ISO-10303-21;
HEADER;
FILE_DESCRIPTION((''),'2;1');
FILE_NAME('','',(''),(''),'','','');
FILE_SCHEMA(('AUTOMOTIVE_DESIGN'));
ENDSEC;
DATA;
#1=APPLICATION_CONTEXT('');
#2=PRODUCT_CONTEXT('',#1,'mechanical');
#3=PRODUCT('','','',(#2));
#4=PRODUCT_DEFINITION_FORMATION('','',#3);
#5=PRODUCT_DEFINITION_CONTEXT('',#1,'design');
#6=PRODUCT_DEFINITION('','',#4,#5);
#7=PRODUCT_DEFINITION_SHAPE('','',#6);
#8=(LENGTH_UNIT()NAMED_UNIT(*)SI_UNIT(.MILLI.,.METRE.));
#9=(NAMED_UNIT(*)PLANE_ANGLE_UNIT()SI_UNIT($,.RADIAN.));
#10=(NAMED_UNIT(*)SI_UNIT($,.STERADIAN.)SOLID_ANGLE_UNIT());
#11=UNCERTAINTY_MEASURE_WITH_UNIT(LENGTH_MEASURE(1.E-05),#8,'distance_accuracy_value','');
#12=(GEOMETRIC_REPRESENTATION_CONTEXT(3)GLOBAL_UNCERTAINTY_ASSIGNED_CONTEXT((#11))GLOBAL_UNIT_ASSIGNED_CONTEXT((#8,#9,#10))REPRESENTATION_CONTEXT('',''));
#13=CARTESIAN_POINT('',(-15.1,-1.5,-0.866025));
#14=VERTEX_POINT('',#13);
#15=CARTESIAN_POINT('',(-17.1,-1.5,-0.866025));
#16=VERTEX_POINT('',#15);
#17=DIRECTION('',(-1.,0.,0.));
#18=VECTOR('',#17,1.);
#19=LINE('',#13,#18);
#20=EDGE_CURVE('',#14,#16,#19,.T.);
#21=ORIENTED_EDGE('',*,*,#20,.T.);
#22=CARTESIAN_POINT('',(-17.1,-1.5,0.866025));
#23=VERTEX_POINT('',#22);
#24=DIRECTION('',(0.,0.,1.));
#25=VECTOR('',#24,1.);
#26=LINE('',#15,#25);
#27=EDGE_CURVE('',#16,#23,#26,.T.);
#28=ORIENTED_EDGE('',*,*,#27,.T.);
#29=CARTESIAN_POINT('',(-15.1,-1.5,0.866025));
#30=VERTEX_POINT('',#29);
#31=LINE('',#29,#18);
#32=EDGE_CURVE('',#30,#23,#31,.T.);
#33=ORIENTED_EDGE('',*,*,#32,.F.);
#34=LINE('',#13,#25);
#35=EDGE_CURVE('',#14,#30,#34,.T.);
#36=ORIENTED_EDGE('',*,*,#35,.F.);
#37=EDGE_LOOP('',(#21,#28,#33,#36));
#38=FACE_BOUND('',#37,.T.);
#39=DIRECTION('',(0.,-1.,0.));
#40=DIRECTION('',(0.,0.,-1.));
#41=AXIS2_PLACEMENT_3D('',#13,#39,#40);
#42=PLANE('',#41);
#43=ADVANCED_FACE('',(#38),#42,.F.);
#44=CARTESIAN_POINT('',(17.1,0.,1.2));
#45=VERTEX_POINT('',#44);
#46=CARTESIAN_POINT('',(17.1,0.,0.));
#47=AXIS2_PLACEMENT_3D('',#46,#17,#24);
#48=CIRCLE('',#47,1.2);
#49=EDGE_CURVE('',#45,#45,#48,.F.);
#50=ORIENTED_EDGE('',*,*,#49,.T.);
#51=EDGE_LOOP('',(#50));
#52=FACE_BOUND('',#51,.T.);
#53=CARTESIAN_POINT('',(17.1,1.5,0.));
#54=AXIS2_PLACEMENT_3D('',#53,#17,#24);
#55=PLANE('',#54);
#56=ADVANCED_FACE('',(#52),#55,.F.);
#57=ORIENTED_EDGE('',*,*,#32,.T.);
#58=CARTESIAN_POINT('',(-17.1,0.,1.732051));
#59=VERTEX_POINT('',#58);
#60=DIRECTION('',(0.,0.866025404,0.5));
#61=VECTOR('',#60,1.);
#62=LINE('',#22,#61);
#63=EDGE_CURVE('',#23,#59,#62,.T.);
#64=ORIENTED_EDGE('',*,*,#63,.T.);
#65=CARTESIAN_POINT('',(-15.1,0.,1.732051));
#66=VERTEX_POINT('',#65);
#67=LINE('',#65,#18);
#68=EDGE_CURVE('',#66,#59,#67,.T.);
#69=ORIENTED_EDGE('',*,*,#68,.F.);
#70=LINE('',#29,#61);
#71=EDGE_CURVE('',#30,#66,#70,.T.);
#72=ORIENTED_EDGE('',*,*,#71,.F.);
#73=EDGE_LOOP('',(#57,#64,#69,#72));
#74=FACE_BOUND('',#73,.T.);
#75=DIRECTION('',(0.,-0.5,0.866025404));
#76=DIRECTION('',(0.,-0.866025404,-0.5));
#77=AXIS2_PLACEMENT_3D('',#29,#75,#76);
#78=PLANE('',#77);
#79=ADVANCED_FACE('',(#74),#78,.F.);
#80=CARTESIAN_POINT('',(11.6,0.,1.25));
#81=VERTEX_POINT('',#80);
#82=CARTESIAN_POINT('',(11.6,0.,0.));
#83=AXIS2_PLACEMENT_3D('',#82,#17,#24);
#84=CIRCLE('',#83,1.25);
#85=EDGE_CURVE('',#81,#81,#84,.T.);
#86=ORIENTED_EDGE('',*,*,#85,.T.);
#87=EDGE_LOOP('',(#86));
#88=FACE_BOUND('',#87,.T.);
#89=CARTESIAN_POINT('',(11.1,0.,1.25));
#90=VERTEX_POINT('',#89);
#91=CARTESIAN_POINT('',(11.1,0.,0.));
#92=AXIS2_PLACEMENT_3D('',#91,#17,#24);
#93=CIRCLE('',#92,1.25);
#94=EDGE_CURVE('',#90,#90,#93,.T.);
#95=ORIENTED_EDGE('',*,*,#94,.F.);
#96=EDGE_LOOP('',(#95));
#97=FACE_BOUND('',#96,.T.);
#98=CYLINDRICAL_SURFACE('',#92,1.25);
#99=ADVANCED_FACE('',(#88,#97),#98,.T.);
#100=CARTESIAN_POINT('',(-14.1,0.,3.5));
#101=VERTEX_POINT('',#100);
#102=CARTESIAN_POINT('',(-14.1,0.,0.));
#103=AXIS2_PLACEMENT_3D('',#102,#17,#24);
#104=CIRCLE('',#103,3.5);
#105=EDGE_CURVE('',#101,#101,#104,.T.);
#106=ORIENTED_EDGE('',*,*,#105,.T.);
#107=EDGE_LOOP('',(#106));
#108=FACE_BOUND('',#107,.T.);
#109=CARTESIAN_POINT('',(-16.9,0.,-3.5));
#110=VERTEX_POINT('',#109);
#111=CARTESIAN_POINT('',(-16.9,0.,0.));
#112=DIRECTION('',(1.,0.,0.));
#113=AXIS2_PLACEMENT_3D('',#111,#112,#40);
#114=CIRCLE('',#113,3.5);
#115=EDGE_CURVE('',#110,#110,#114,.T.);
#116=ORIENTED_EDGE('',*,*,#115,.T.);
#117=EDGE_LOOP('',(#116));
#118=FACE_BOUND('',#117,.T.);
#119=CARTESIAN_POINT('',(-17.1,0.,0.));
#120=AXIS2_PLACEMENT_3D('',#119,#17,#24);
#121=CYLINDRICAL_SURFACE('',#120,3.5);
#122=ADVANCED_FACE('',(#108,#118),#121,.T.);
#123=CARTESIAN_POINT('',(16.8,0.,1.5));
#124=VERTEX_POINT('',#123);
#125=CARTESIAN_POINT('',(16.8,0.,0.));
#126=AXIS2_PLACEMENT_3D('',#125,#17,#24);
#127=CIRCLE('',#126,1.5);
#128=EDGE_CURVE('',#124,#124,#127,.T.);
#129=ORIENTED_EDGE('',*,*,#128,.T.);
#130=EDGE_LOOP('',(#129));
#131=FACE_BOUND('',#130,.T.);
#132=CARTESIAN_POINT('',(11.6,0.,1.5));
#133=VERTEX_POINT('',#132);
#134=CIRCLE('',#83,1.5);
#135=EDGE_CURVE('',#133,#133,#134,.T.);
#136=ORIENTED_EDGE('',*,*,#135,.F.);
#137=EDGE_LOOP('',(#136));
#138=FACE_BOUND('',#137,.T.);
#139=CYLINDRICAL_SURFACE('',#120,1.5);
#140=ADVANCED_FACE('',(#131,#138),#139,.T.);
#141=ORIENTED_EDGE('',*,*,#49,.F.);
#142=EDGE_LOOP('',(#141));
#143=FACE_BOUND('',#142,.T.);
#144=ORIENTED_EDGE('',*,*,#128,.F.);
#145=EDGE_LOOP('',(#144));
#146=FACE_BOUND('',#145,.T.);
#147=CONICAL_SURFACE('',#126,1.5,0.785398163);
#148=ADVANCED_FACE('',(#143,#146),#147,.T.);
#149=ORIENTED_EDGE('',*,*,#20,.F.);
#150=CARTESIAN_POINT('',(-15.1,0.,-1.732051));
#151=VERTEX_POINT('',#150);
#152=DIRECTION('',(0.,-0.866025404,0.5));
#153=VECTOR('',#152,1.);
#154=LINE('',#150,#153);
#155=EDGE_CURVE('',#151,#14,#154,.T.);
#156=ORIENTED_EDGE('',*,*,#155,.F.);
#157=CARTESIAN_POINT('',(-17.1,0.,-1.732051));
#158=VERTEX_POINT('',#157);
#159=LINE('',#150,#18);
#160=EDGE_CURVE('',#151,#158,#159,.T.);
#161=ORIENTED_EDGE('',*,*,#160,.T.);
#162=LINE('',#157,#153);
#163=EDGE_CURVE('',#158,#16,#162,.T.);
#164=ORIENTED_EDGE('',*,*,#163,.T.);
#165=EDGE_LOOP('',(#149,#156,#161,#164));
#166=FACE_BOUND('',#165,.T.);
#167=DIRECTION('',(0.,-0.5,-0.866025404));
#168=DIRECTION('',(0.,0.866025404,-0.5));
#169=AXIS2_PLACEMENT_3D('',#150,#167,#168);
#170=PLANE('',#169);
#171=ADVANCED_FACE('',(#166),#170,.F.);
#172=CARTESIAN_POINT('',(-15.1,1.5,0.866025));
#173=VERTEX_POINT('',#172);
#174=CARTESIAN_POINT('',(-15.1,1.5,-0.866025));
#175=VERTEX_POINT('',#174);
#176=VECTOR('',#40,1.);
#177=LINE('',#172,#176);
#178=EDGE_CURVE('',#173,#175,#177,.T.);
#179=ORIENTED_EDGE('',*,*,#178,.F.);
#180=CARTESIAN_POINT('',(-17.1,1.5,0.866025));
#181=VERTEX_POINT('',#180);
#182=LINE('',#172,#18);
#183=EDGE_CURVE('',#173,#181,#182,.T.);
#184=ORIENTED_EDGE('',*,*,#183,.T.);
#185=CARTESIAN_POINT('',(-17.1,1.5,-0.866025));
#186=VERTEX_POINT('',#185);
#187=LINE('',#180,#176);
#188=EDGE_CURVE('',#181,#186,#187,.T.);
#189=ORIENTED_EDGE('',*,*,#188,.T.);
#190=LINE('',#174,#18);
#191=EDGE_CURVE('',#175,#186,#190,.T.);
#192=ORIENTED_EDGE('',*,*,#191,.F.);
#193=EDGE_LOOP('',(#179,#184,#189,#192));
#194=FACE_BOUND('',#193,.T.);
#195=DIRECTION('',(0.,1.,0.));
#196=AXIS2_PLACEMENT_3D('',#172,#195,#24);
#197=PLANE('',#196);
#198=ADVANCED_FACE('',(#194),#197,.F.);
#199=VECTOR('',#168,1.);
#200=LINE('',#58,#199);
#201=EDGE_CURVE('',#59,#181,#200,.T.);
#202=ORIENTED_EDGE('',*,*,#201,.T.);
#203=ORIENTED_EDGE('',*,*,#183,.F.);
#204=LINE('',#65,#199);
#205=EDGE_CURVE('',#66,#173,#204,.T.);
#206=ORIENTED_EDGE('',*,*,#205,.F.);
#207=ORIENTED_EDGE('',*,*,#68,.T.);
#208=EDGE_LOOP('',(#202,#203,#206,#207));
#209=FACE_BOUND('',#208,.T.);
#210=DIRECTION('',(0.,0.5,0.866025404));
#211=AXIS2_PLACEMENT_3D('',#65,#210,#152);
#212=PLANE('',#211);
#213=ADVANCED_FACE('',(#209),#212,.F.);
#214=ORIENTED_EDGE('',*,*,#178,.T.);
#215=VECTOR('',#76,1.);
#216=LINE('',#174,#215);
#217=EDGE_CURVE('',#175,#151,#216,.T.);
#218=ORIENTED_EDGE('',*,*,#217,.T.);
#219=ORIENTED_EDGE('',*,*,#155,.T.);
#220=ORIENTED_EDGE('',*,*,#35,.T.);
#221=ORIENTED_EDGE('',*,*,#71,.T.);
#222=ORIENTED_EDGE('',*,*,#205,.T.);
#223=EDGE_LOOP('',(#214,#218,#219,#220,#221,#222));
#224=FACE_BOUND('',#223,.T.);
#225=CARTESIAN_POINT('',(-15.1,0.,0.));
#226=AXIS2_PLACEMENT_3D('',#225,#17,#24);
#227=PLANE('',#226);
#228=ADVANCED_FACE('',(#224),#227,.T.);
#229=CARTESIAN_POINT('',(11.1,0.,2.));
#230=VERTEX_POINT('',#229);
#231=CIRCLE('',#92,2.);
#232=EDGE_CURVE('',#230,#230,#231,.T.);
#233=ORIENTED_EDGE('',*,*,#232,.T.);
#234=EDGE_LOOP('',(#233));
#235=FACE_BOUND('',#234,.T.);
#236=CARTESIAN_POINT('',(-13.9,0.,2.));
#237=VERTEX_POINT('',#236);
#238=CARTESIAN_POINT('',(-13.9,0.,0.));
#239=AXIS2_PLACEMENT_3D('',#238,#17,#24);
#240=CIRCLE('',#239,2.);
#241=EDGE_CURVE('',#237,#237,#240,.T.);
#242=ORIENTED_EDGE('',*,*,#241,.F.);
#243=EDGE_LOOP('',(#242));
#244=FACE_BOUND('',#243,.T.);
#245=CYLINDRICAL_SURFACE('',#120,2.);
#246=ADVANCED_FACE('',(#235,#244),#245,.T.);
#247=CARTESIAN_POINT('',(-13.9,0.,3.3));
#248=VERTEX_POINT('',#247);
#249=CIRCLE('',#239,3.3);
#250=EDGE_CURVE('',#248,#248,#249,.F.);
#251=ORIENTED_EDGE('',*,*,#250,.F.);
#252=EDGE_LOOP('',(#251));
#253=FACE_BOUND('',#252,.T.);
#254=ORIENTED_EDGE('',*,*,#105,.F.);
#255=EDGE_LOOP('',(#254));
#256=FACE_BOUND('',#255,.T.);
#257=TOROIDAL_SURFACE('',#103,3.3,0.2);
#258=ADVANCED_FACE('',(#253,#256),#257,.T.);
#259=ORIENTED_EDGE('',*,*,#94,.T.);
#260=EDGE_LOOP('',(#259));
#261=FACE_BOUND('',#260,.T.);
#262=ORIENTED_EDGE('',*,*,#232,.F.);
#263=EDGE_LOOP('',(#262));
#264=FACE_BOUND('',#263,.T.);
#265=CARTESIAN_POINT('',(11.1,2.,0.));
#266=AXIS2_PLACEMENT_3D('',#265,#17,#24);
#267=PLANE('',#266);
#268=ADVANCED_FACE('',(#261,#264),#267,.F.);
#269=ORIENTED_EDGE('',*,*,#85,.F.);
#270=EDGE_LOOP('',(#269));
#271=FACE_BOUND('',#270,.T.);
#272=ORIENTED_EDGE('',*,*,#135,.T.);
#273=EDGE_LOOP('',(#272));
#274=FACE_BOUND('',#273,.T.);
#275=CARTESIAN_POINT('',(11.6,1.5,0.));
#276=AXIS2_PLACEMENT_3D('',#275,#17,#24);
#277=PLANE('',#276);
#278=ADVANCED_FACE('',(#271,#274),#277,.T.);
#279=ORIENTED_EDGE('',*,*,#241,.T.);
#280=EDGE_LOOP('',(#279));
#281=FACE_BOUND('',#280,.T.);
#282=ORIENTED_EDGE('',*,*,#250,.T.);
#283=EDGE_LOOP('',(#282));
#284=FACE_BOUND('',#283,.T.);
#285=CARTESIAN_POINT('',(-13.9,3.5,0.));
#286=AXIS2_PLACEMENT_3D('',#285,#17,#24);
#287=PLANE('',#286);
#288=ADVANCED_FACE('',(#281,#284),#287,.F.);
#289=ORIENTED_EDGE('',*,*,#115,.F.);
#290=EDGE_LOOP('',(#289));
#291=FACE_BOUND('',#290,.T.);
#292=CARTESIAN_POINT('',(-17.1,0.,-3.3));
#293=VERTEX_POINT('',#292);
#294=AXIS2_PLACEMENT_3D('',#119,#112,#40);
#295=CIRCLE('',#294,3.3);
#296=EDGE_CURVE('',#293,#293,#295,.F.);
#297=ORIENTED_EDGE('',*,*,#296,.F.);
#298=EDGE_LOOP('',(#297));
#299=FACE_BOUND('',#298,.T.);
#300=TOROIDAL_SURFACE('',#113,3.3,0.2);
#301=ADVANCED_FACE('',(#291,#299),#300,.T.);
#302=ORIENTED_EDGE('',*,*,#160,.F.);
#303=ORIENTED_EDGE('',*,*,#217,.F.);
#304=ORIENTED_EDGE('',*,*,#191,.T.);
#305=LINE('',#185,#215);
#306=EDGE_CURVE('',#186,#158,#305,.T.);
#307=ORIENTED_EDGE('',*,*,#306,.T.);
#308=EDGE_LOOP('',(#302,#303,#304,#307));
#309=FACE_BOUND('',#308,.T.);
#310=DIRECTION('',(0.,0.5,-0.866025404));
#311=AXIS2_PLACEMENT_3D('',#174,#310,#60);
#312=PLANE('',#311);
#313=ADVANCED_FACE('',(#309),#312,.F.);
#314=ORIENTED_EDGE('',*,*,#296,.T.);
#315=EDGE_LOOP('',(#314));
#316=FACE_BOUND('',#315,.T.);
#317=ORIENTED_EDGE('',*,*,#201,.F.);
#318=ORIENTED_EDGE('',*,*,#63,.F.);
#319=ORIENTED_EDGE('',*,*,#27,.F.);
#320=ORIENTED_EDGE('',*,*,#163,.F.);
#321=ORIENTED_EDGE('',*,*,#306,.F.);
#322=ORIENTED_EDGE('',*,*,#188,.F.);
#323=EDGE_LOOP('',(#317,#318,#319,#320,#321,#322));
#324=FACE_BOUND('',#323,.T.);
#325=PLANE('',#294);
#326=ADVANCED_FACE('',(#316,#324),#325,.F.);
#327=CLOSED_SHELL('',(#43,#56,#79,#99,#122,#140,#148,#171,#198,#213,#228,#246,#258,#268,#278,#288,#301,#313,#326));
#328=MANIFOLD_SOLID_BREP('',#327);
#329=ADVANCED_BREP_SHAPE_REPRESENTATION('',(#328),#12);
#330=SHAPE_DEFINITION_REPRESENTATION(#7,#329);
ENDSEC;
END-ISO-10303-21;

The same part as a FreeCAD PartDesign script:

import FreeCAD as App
import Part
import Sketcher
from FreeCAD import Vector
Q = App.Units.Quantity


def edges_at(feature, points):
    """Names of the edges that pass closest to the given points."""
    edges = feature.Shape.Edges
    near = lambda p: min(range(len(edges)), key=lambda i: edges[i].distToShape(Part.Vertex(*p))[0])
    return sorted({f"Edge{near(p) + 1}" for p in points})


def add_polygon(sketch, points):
    """Adds a closed chain of lines whose ends are joined by coincident constraints."""
    first, n = sketch.GeometryCount, len(points)
    for a, b in zip(points, points[1:] + points[:1]):
        sketch.addGeometry(Part.LineSegment(App.Vector(*a, 0), App.Vector(*b, 0)), False)
    for i in range(n):
        sketch.addConstraint(Sketcher.Constraint("Coincident", first + i, 2, first + (i + 1) % n, 1))

doc = App.newDocument("Part")
params = doc.addObject("Spreadsheet::Sheet", "Params")
for row, (alias, value) in enumerate([
    ("sketch1_width", "6 mm"),
    ("sketch1_width2", "25 mm"),
    ("sketch1_width3", "34.2 mm"),
    ("sketch1_height", "3.5 mm"),
    ("sketch1_height2", "1.5 mm"),
    ("revolution_angle", "360 deg"),
    ("fillet_radius", "0.2 mm"),
    ("chamfer_size", "0.3 mm"),
    ("sketch2_width", "0.5 mm"),
    ("sketch2_height", "0.25 mm"),
    ("groove_angle", "360 deg"),
    ("pocket1_length", "2 mm"),
], start=1):
    params.set(f"A{row}", alias)
    params.set(f"B{row}", "=" + value)
    params.setAlias(f"B{row}", alias)

body = doc.addObject("PartDesign::Body", "Body")

# Sketch on XY plane
sketch1 = body.newObject("Sketcher::SketchObject", "Sketch")
sketch1.AttachmentSupport = (doc.getObject("XY_Plane"), [""])
sketch1.MapMode = "FlatFace"
add_polygon(sketch1, [(-17.1, 3.5), (-17.1, 0), (17.1, 0), (17.1, 1.5), (11.1, 1.5), (11.1, 2), (-13.9, 2), (-13.9, 3.5)])  # lines 0-7
sketch1.addConstraint(Sketcher.Constraint("Vertical", 0))
sketch1.addConstraint(Sketcher.Constraint("Horizontal", 1))
sketch1.addConstraint(Sketcher.Constraint("Vertical", 2))
sketch1.addConstraint(Sketcher.Constraint("Horizontal", 3))
sketch1.addConstraint(Sketcher.Constraint("Vertical", 4))
sketch1.addConstraint(Sketcher.Constraint("Horizontal", 5))
sketch1.addConstraint(Sketcher.Constraint("Vertical", 6))
sketch1.addConstraint(Sketcher.Constraint("Horizontal", 7))
sketch1.addConstraint(Sketcher.Constraint("Symmetric", 0, 2, 1, 2, -1, 1))
sketch1.addConstraint(Sketcher.Constraint("Equal", 2, 6))
sketch1.addConstraint(Sketcher.Constraint("DistanceX", 3, 2, 3, 1, Q("6 mm")))
sketch1.addConstraint(Sketcher.Constraint("DistanceX", 5, 2, 5, 1, Q("25 mm")))
sketch1.addConstraint(Sketcher.Constraint("DistanceX", 1, 1, 1, 2, Q("34.2 mm")))
sketch1.addConstraint(Sketcher.Constraint("DistanceY", 0, 2, 0, 1, Q("3.5 mm")))
sketch1.addConstraint(Sketcher.Constraint("DistanceY", 2, 1, 2, 2, Q("1.5 mm")))
sketch1.setExpression("Constraints[18]", "Params.sketch1_width")
sketch1.setExpression("Constraints[19]", "Params.sketch1_width2")
sketch1.setExpression("Constraints[20]", "Params.sketch1_width3")
sketch1.setExpression("Constraints[21]", "Params.sketch1_height")
sketch1.setExpression("Constraints[22]", "Params.sketch1_height2")
revolution = body.newObject("PartDesign::Revolution", "Revolution")
revolution.Profile = sketch1
revolution.ReferenceAxis = (sketch1, ["H_Axis"])
revolution.setExpression("Angle", "Params.revolution_angle")
doc.recompute()

fillet = body.newObject("PartDesign::Fillet", "Fillet")
fillet.Base = (revolution, edges_at(revolution, [(-13.9, 0, -3.5), (-17.1, 0, -3.5)]))
fillet.setExpression("Radius", "Params.fillet_radius")
doc.recompute()

chamfer = body.newObject("PartDesign::Chamfer", "Chamfer")
chamfer.Base = (fillet, edges_at(fillet, [(17.1, 0, -1.5)]))
chamfer.setExpression("Size", "Params.chamfer_size")

# Sketch on XY plane
sketch2 = body.newObject("Sketcher::SketchObject", "Sketch001")
sketch2.AttachmentSupport = (doc.getObject("XY_Plane"), [""])
sketch2.MapMode = "FlatFace"
add_polygon(sketch2, [(11.1, 1.5), (11.1, 1.25), (11.6, 1.25), (11.6, 1.5)])  # lines 0-3
sketch2.addConstraint(Sketcher.Constraint("Vertical", 0))
sketch2.addConstraint(Sketcher.Constraint("Horizontal", 1))
sketch2.addConstraint(Sketcher.Constraint("Vertical", 2))
sketch2.addConstraint(Sketcher.Constraint("Horizontal", 3))
sketch2.addConstraint(Sketcher.Constraint("DistanceX", 1, 1, 1, 2, Q("0.5 mm")))
sketch2.addConstraint(Sketcher.Constraint("DistanceY", 0, 2, 0, 1, Q("0.25 mm")))
sketch2.addConstraint(Sketcher.Constraint("DistanceX", -1, 1, 0, 2, Q("11.1 mm")))
sketch2.addConstraint(Sketcher.Constraint("DistanceY", -1, 1, 2, 2, Q("1.5 mm")))
sketch2.setExpression("Constraints[8]", "Params.sketch2_width")
sketch2.setExpression("Constraints[9]", "Params.sketch2_height")
groove = body.newObject("PartDesign::Groove", "Groove")
groove.Profile = sketch2
groove.ReferenceAxis = (sketch2, ["H_Axis"])
groove.setExpression("Angle", "Params.groove_angle")

# Sketch on YZ plane
sketch3 = body.newObject("Sketcher::SketchObject", "Sketch002")
sketch3.AttachmentSupport = (doc.getObject("YZ_Plane"), [""])
sketch3.MapMode = "FlatFace"
sketch3.AttachmentOffset = App.Placement(Vector(0, 0, -17.1), App.Rotation())
add_polygon(sketch3, [(0, 1.7), (1.5, 0.9), (1.5, -0.9), (0, -1.7), (-1.5, -0.9), (-1.5, 0.9)])  # lines 0-5
sketch3.addConstraint(Sketcher.Constraint("Vertical", 1))
sketch3.addConstraint(Sketcher.Constraint("Vertical", 4))
sketch3.addConstraint(Sketcher.Constraint("Symmetric", 0, 2, 3, 2, -1, 1))
sketch3.addConstraint(Sketcher.Constraint("Symmetric", 2, 2, 5, 2, -1, 1))
sketch3.addConstraint(Sketcher.Constraint("PointOnObject", 2, 2, -2))
sketch3.addConstraint(Sketcher.Constraint("Parallel", 2, 5))
sketch3.addConstraint(Sketcher.Constraint("Horizontal", 1, 2, 3, 2))
sketch3.addConstraint(Sketcher.Constraint("Angle", 0, Q("-30 deg")))
sketch3.addConstraint(Sketcher.Constraint("DistanceX", 3, 2, 1, 2, Q("3 mm")))
sketch3.addConstraint(Sketcher.Constraint("DistanceY", 1, 2, 1, 1, Q("1.732051 mm")))
pocket1 = body.newObject("PartDesign::Pocket", "Pocket")
pocket1.Profile = sketch3
pocket1.setExpression("Length", "Params.pocket1_length")
pocket1.Reversed = True

doc.recompute()
